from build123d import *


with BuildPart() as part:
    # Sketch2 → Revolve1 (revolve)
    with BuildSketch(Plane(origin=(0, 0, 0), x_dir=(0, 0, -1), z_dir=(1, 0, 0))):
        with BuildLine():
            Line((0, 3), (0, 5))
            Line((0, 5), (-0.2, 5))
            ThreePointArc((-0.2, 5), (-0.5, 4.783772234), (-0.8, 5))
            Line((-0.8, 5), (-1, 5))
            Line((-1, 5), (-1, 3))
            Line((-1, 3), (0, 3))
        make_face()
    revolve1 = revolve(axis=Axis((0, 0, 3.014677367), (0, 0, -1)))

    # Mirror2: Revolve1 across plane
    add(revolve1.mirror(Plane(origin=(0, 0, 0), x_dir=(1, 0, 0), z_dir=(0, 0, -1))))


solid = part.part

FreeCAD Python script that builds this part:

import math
import FreeCAD as App
import Part
import Sketcher

V = App.Vector
Q = App.Units.Quantity

doc = App.newDocument("Part")
body = doc.addObject("PartDesign::Body", "Body")

# Sketch on YZ plane
sketch1 = body.newObject("Sketcher::SketchObject", "Sketch")
sketch1.AttachmentSupport = (doc.getObject("YZ_Plane"), [""])
sketch1.MapMode = "FlatFace"
sketch1.addGeometry([
    Part.LineSegment(V(3, 0, 0), V(5, 0, 0)),  # 0
    Part.LineSegment(V(5, 0, 0), V(5, 0.2, 0)),  # 1
    Part.ArcOfCircle(Part.Circle(V(5.1, 0.5, 0), V(0, 0, 1), 0.316228), math.radians(108.434949), math.radians(251.565051)),  # 2
    Part.LineSegment(V(5, 0.8, 0), V(5, 1, 0)),  # 3
    Part.LineSegment(V(5, 1, 0), V(3, 1, 0)),  # 4
    Part.LineSegment(V(3, 1, 0), V(3, 0, 0)),  # 5
], False)
sketch1.addConstraint([
    Sketcher.Constraint("Coincident", 0, 2, 1, 1),
    Sketcher.Constraint("Coincident", 1, 2, 2, 2),
    Sketcher.Constraint("Coincident", 2, 1, 3, 1),
    Sketcher.Constraint("Coincident", 3, 2, 4, 1),
    Sketcher.Constraint("Coincident", 4, 2, 5, 1),
    Sketcher.Constraint("Coincident", 5, 2, 0, 1),
    Sketcher.Constraint("Horizontal", 0),
    Sketcher.Constraint("Vertical", 1),
    Sketcher.Constraint("Vertical", 3),
    Sketcher.Constraint("Horizontal", 4),
    Sketcher.Constraint("Vertical", 5),
    Sketcher.Constraint("PointOnObject", 0, 2, -1),
    Sketcher.Constraint("Vertical", 1, 2, 2, 1),
    Sketcher.Constraint("Equal", 1, 3),
    Sketcher.Constraint("DistanceX", 0, 1, 0, 2, Q("2 mm")),
    Sketcher.Constraint("DistanceY", 5, 2, 5, 1, Q("1 mm")),
    Sketcher.Constraint("DistanceY", 1, 1, 1, 2, Q("0.2 mm")),
    Sketcher.Constraint("DistanceX", -1, 1, 0, 2, Q("5 mm")),
    Sketcher.Constraint("DistanceX", -1, 1, 2, 3, Q("5.1 mm")),
])
revolution = body.newObject("PartDesign::Revolution", "Revolution")
revolution.Profile = sketch1
revolution.ReferenceAxis = (sketch1, ["V_Axis"])
revolution.Angle = 360
doc.recompute()

mirrored = body.newObject("PartDesign::Mirrored", "Mirrored")
mirrored.Originals = [revolution]
mirrored.MirrorPlane = (doc.getObject("XY_Plane"), [""])
body.Tip = mirrored

doc.recompute()
